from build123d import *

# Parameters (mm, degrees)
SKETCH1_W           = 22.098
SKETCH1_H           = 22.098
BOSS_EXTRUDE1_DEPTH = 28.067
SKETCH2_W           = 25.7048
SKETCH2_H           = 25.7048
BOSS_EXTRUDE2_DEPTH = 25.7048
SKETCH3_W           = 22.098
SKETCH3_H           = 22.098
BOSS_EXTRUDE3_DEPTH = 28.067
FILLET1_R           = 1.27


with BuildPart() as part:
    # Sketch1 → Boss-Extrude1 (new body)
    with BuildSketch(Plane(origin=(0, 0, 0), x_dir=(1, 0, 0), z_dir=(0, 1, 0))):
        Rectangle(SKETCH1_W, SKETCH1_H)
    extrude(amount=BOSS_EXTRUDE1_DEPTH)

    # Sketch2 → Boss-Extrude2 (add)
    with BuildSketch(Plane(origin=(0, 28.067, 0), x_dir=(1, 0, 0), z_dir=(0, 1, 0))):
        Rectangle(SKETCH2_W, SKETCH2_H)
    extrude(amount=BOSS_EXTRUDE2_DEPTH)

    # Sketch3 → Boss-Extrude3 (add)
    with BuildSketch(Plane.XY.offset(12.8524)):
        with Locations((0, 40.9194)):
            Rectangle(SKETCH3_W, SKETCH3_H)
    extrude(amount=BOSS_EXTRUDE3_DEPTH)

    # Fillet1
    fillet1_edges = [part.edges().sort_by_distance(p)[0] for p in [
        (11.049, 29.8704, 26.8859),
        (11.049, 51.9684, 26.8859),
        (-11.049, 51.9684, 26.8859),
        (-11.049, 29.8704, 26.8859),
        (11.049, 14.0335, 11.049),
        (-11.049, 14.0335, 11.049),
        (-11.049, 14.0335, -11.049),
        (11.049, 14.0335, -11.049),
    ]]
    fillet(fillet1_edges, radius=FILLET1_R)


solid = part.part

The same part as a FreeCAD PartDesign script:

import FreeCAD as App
import Part
import Sketcher
from FreeCAD import Vector
Q = App.Units.Quantity


def edges_at(feature, points):
    """Names of the edges that pass closest to the given points."""
    edges = feature.Shape.Edges
    near = lambda p: min(range(len(edges)), key=lambda i: edges[i].distToShape(Part.Vertex(*p))[0])
    return sorted({f"Edge{near(p) + 1}" for p in points})

doc = App.newDocument("Part")
body = doc.addObject("PartDesign::Body", "Body")

# Sketch on XZ plane
sketch1 = body.newObject("Sketcher::SketchObject", "Sketch")
sketch1.AttachmentSupport = (doc.getObject("XZ_Plane"), [""])
sketch1.MapMode = "FlatFace"
sketch1.addGeometry([
    Part.LineSegment(Vector(-11.049, -11.049, 0), Vector(-11.049, 11.049, 0)),
    Part.LineSegment(Vector(-11.049, 11.049, 0), Vector(11.049, 11.049, 0)),
    Part.LineSegment(Vector(11.049, 11.049, 0), Vector(11.049, -11.049, 0)),
    Part.LineSegment(Vector(11.049, -11.049, 0), Vector(-11.049, -11.049, 0)),
], False)
sketch1.addConstraint([
    Sketcher.Constraint("Coincident", 0, 2, 1, 1),
    Sketcher.Constraint("Coincident", 1, 2, 2, 1),
    Sketcher.Constraint("Coincident", 2, 2, 3, 1),
    Sketcher.Constraint("Coincident", 3, 2, 0, 1),
    Sketcher.Constraint("Vertical", 0),
    Sketcher.Constraint("Horizontal", 1),
    Sketcher.Constraint("Vertical", 2),
    Sketcher.Constraint("Horizontal", 3),
    Sketcher.Constraint("Symmetric", 0, 2, 2, 2, -1, 1),
    Sketcher.Constraint("Equal", 3, 0),
    Sketcher.Constraint("DistanceX", 1, 1, 1, 2, Q("0.87 in")),
])
pad1 = body.newObject("PartDesign::Pad", "Pad")
pad1.Profile = sketch1
pad1.Length = Q("1.105 in")
pad1.Reversed = True

# Sketch on XZ plane
sketch2 = body.newObject("Sketcher::SketchObject", "Sketch001")
sketch2.AttachmentSupport = (doc.getObject("XZ_Plane"), [""])
sketch2.MapMode = "FlatFace"
sketch2.AttachmentOffset = App.Placement(Vector(0, 0, -1.105 * 25.4), App.Rotation())
sketch2.addGeometry([
    Part.LineSegment(Vector(-12.8524, -12.8524, 0), Vector(-12.8524, 12.8524, 0)),
    Part.LineSegment(Vector(-12.8524, 12.8524, 0), Vector(12.8524, 12.8524, 0)),
    Part.LineSegment(Vector(12.8524, 12.8524, 0), Vector(12.8524, -12.8524, 0)),
    Part.LineSegment(Vector(12.8524, -12.8524, 0), Vector(-12.8524, -12.8524, 0)),
], False)
sketch2.addConstraint([
    Sketcher.Constraint("Coincident", 0, 2, 1, 1),
    Sketcher.Constraint("Coincident", 1, 2, 2, 1),
    Sketcher.Constraint("Coincident", 2, 2, 3, 1),
    Sketcher.Constraint("Coincident", 3, 2, 0, 1),
    Sketcher.Constraint("Vertical", 0),
    Sketcher.Constraint("Horizontal", 1),
    Sketcher.Constraint("Vertical", 2),
    Sketcher.Constraint("Horizontal", 3),
    Sketcher.Constraint("Symmetric", 0, 2, 2, 2, -1, 1),
    Sketcher.Constraint("Equal", 3, 0),
    Sketcher.Constraint("DistanceX", 1, 1, 1, 2, Q("1.012 in")),
])
pad2 = body.newObject("PartDesign::Pad", "Pad001")
pad2.Profile = sketch2
pad2.Length = Q("1.012 in")
pad2.Reversed = True

# Sketch on XY plane
sketch3 = body.newObject("Sketcher::SketchObject", "Sketch002")
sketch3.AttachmentSupport = (doc.getObject("XY_Plane"), [""])
sketch3.MapMode = "FlatFace"
sketch3.AttachmentOffset = App.Placement(Vector(0, 0, 0.506 * 25.4), App.Rotation())
sketch3.addGeometry([
    Part.LineSegment(Vector(-11.049, 51.9684, 0), Vector(-11.049, 29.8704, 0)),
    Part.LineSegment(Vector(-11.049, 29.8704, 0), Vector(11.049, 29.8704, 0)),
    Part.LineSegment(Vector(11.049, 29.8704, 0), Vector(11.049, 51.9684, 0)),
    Part.LineSegment(Vector(11.049, 51.9684, 0), Vector(-11.049, 51.9684, 0)),
], False)
sketch3.addConstraint([
    Sketcher.Constraint("Coincident", 0, 2, 1, 1),
    Sketcher.Constraint("Coincident", 1, 2, 2, 1),
    Sketcher.Constraint("Coincident", 2, 2, 3, 1),
    Sketcher.Constraint("Coincident", 3, 2, 0, 1),
    Sketcher.Constraint("Vertical", 0),
    Sketcher.Constraint("Horizontal", 1),
    Sketcher.Constraint("Vertical", 2),
    Sketcher.Constraint("Horizontal", 3),
    Sketcher.Constraint("Equal", 3, 0),
    Sketcher.Constraint("DistanceX", 1, 1, 1, 2, Q("0.87 in")),
    Sketcher.Constraint("DistanceX", 0, 2, -1, 1, Q("0.435 in")),
    Sketcher.Constraint("DistanceY", -1, 1, 0, 2, Q("1.176 in")),
])
pad3 = body.newObject("PartDesign::Pad", "Pad002")
pad3.Profile = sketch3
pad3.Length = Q("1.105 in")
doc.recompute()

fillet = body.newObject("PartDesign::Fillet", "Fillet")
fillet.Base = (pad3, edges_at(pad3, [
    (11.049, 29.87, 26.886),
    (11.049, 51.968, 26.886),
    (-11.049, 51.968, 26.886),
    (-11.049, 29.87, 26.886),
    (11.049, 14.034, 11.049),
    (-11.049, 14.034, 11.049),
    (-11.049, 14.034, -11.049),
    (11.049, 14.034, -11.049),
]))
fillet.Radius = Q("0.05 in")

doc.recompute()
